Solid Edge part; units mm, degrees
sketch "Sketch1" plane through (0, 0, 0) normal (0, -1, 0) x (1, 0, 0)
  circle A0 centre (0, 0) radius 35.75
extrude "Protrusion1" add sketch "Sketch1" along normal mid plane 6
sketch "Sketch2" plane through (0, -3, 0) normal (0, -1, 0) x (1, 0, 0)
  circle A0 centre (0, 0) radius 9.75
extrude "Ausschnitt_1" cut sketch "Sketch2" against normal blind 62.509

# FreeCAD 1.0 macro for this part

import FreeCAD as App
import Part
import Sketcher
from FreeCAD import Vector

doc = App.newDocument("Part")
params = doc.addObject("Spreadsheet::Sheet", "Params")
for row, (alias, value) in enumerate([
    ("sketch1_diameter", "71.5 mm"),
    ("pad1_length", "6 mm"),
    ("sketch2_diameter", "19.5 mm"),
    ("pocket1_length", "62.509 mm"),
], start=1):
    params.set(f"A{row}", alias)
    params.set(f"B{row}", "=" + value)
    params.setAlias(f"B{row}", alias)

body = doc.addObject("PartDesign::Body", "Body")

sketch1 = body.newObject("Sketcher::SketchObject", "Sketch")
sketch1.AttachmentSupport = (doc.getObject("XZ_Plane"), [""])
sketch1.MapMode = "FlatFace"
sketch1.addGeometry(Part.Circle(Vector(0, 0, 0), Vector(0, 0, 1), 35.75), False)
sketch1.addConstraint(Sketcher.Constraint("Coincident", 0, 3, -1, 1))
sketch1.addConstraint(Sketcher.Constraint("Diameter", 0, 71.5))
sketch1.setExpression("Constraints[1]", "Params.sketch1_diameter")
pad1 = body.newObject("PartDesign::Pad", "Pad")
pad1.Profile = sketch1
pad1.setExpression("Length", "Params.pad1_length")
pad1.Midplane = True

sketch2 = body.newObject("Sketcher::SketchObject", "Sketch001")
sketch2.AttachmentSupport = (doc.getObject("XZ_Plane"), [""])
sketch2.MapMode = "FlatFace"
sketch2.AttachmentOffset = App.Placement(Vector(0, 0, 3), App.Rotation())
sketch2.addGeometry(Part.Circle(Vector(0, 0, 0), Vector(0, 0, 1), 9.75), False)
sketch2.addConstraint(Sketcher.Constraint("Coincident", 0, 3, -1, 1))
sketch2.addConstraint(Sketcher.Constraint("Diameter", 0, 19.5))
sketch2.setExpression("Constraints[1]", "Params.sketch2_diameter")
pocket1 = body.newObject("PartDesign::Pocket", "Pocket")
pocket1.Profile = sketch2
pocket1.setExpression("Length", "Params.pocket1_length")

doc.recompute()
